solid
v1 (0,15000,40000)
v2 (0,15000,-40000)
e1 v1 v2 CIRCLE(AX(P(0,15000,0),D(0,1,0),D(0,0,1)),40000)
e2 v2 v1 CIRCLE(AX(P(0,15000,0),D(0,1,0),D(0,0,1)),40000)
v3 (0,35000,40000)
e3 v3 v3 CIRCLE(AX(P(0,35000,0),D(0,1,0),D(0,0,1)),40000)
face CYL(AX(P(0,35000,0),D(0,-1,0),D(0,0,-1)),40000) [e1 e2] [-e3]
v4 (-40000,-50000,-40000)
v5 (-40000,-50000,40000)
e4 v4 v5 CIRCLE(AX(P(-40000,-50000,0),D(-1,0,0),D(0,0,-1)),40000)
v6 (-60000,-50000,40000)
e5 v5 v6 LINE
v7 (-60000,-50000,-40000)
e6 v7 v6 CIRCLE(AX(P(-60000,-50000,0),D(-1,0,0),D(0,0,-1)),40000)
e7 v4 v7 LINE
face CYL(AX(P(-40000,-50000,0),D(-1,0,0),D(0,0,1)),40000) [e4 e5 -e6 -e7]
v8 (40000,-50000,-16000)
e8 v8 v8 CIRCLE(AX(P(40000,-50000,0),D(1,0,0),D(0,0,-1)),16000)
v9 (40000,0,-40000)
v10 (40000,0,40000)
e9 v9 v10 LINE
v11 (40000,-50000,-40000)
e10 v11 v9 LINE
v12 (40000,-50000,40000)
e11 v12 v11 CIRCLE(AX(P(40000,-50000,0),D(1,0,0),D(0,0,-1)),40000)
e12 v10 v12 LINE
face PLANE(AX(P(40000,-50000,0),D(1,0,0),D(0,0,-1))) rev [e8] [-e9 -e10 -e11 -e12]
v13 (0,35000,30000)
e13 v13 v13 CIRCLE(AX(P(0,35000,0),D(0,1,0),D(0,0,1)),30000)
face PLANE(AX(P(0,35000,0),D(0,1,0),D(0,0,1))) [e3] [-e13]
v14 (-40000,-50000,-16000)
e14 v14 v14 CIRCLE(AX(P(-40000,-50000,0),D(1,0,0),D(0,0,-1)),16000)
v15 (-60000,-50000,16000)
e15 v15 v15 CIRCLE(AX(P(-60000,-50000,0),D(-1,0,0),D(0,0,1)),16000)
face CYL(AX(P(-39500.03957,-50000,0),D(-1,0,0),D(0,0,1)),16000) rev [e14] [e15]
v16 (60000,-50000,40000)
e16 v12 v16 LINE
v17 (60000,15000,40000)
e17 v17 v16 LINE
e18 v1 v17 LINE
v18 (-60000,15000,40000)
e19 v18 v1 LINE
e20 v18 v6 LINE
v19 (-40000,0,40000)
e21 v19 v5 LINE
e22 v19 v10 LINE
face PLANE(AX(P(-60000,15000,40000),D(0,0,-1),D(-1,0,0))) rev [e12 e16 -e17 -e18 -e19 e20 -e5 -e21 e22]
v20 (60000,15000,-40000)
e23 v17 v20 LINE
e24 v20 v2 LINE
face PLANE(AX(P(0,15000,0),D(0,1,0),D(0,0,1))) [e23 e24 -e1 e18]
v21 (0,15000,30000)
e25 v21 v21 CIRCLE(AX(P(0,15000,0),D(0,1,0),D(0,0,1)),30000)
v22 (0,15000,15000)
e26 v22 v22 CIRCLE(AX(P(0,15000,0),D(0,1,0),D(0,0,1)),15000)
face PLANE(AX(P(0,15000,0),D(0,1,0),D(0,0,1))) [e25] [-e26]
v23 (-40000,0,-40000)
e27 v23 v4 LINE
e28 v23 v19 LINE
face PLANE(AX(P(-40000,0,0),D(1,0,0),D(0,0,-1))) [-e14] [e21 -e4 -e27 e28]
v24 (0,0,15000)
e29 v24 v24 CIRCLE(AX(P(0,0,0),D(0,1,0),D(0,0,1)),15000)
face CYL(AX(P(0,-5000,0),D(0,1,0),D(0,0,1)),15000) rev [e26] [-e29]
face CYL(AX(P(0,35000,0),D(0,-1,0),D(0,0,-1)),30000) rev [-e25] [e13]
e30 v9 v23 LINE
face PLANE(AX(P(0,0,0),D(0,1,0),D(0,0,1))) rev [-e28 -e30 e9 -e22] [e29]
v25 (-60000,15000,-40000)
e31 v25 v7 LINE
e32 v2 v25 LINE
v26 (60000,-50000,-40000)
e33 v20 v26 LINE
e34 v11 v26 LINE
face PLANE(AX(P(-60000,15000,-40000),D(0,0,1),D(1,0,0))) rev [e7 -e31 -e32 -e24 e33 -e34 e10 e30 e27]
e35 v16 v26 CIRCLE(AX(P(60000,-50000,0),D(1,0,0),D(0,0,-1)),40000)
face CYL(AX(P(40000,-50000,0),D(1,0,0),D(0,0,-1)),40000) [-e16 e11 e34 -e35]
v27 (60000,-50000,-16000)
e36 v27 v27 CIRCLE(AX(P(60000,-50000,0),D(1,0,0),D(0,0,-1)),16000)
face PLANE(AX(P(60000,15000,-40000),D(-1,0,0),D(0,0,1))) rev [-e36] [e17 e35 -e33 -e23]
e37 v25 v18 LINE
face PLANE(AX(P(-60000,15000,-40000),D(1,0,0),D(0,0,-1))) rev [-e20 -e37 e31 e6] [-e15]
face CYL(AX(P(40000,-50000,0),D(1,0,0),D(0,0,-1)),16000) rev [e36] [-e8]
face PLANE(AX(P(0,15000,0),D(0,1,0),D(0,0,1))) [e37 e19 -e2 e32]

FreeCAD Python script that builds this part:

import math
import FreeCAD as App
import Part
import Sketcher

V = App.Vector
Q = App.Units.Quantity


def add_polygon(sketch, points):
    """Adds a closed chain of lines whose ends are joined by coincident constraints."""
    first, n = sketch.GeometryCount, len(points)
    for a, b in zip(points, points[1:] + points[:1]):
        sketch.addGeometry(Part.LineSegment(App.Vector(*a, 0), App.Vector(*b, 0)), False)
    for i in range(n):
        sketch.addConstraint(Sketcher.Constraint("Coincident", first + i, 2, first + (i + 1) % n, 1))

doc = App.newDocument("Part")
body = doc.addObject("PartDesign::Body", "Body")

# Sketch on XZ plane
sketch1 = body.newObject("Sketcher::SketchObject", "Sketch")
sketch1.AttachmentSupport = (doc.getObject("XZ_Plane"), [""])
sketch1.MapMode = "FlatFace"
add_polygon(sketch1, [(-60000, -40000), (-60000, 40000), (60000, 40000), (60000, -40000)])  # lines 0-3
sketch1.addConstraint([
    Sketcher.Constraint("Vertical", 0),
    Sketcher.Constraint("Horizontal", 1),
    Sketcher.Constraint("Vertical", 2),
    Sketcher.Constraint("Horizontal", 3),
    Sketcher.Constraint("Symmetric", 0, 2, 2, 2, -1, 1),
    Sketcher.Constraint("DistanceX", 1, 1, 1, 2, Q("120000 mm")),
    Sketcher.Constraint("DistanceY", 0, 1, 0, 2, Q("80000 mm")),
])
pad1 = body.newObject("PartDesign::Pad", "Pad")
pad1.Profile = sketch1
pad1.Length = 15000
pad1.Reversed = True

# Sketch on XZ plane
sketch2 = body.newObject("Sketcher::SketchObject", "Sketch001")
sketch2.AttachmentSupport = (doc.getObject("XZ_Plane"), [""])
sketch2.MapMode = "FlatFace"
sketch2.AttachmentOffset = App.Placement(V(0, 0, -15000), App.Rotation())
sketch2.addGeometry([
    Part.Circle(V(0, 0, 0), V(0, 0, 1), 40000),
    Part.Circle(V(0, 0, 0), V(0, 0, 1), 30000),
], False)
sketch2.addConstraint([
    Sketcher.Constraint("Coincident", 0, 3, -1, 1),
    Sketcher.Constraint("Coincident", 1, 3, -1, 1),
    Sketcher.Constraint("Diameter", 0, Q("80000 mm")),
    Sketcher.Constraint("Diameter", 1, Q("60000 mm")),
])
pad2 = body.newObject("PartDesign::Pad", "Pad001")
pad2.Profile = sketch2
pad2.Length = 20000
pad2.Reversed = True

# Sketch on XZ plane
sketch3 = body.newObject("Sketcher::SketchObject", "Sketch002")
sketch3.AttachmentSupport = (doc.getObject("XZ_Plane"), [""])
sketch3.MapMode = "FlatFace"
sketch3.AttachmentOffset = App.Placement(V(0, 0, -15000), App.Rotation())
sketch3.addGeometry(Part.Circle(V(0, 0, 0), V(0, 0, 1), 15000), False)
sketch3.addConstraint([
    Sketcher.Constraint("Coincident", 0, 3, -1, 1),
    Sketcher.Constraint("Diameter", 0, Q("30000 mm")),
])
pocket1 = body.newObject("PartDesign::Pocket", "Pocket")
pocket1.Profile = sketch3
pocket1.Length = 20000
pocket1.Reversed = True

# Sketch on YZ plane
sketch4 = body.newObject("Sketcher::SketchObject", "Sketch003")
sketch4.AttachmentSupport = (doc.getObject("YZ_Plane"), [""])
sketch4.MapMode = "FlatFace"
sketch4.AttachmentOffset = App.Placement(V(0, 0, -60000), App.Rotation())
add_polygon(sketch4, [(0, -40000), (-50000, -40000), (-50000, 40000), (0, 40000)])  # lines 0-3
sketch4.addConstraint([
    Sketcher.Constraint("Horizontal", 0),
    Sketcher.Constraint("Vertical", 1),
    Sketcher.Constraint("Horizontal", 2),
    Sketcher.Constraint("Vertical", 3),
    Sketcher.Constraint("Symmetric", 2, 2, 3, 2, -1, 1),
    Sketcher.Constraint("DistanceX", 0, 2, 0, 1, Q("50000 mm")),
    Sketcher.Constraint("DistanceY", 1, 1, 1, 2, Q("80000 mm")),
])
pad3 = body.newObject("PartDesign::Pad", "Pad002")
pad3.Profile = sketch4
pad3.Length = 20000

# Sketch on YZ plane
sketch5 = body.newObject("Sketcher::SketchObject", "Sketch004")
sketch5.AttachmentSupport = (doc.getObject("YZ_Plane"), [""])
sketch5.MapMode = "FlatFace"
sketch5.AttachmentOffset = App.Placement(V(0, 0, -60000), App.Rotation())
sketch5.addGeometry([
    Part.LineSegment(V(-50000, 40000, 0), V(-50000, -40000, 0)),
    Part.ArcOfCircle(Part.Circle(V(-50000, 0, 0), V(0, 0, 1), 40000), math.radians(90), math.radians(270)),
], False)
sketch5.addConstraint([
    Sketcher.Constraint("Coincident", 0, 1, 1, 1),
    Sketcher.Constraint("Coincident", 1, 2, 0, 2),
    Sketcher.Constraint("Vertical", 0),
    Sketcher.Constraint("PointOnObject", 1, 3, -1),
    Sketcher.Constraint("Vertical", 1, 3, 0, 1),
    Sketcher.Constraint("Radius", 1, Q("40000 mm")),
    Sketcher.Constraint("DistanceX", 1, 3, -1, 1, Q("50000 mm")),
])
pad4 = body.newObject("PartDesign::Pad", "Pad003")
pad4.Profile = sketch5
pad4.Length = 20000

# Sketch on YZ plane
sketch6 = body.newObject("Sketcher::SketchObject", "Sketch005")
sketch6.AttachmentSupport = (doc.getObject("YZ_Plane"), [""])
sketch6.MapMode = "FlatFace"
sketch6.AttachmentOffset = App.Placement(V(0, 0, -60000), App.Rotation())
sketch6.addGeometry(Part.Circle(V(-50000, 0, 0), V(0, 0, 1), 16000), False)
sketch6.addConstraint([
    Sketcher.Constraint("PointOnObject", 0, 3, -1),
    Sketcher.Constraint("Diameter", 0, Q("32000 mm")),
    Sketcher.Constraint("DistanceX", 0, 3, -1, 1, Q("50000 mm")),
])
pocket2 = body.newObject("PartDesign::Pocket", "Pocket001")
pocket2.Profile = sketch6
pocket2.Length = 20499.96043
pocket2.Reversed = True

# Sketch on YZ plane
sketch7 = body.newObject("Sketcher::SketchObject", "Sketch006")
sketch7.AttachmentSupport = (doc.getObject("YZ_Plane"), [""])
sketch7.MapMode = "FlatFace"
sketch7.AttachmentOffset = App.Placement(V(0, 0, 40000), App.Rotation())
sketch7.addGeometry([
    Part.LineSegment(V(0, -40000, 0), V(0, 40000, 0)),
    Part.LineSegment(V(0, 40000, 0), V(-50000, 40000, 0)),
    Part.ArcOfCircle(Part.Circle(V(-50000, 0, 0), V(0, 0, 1), 40000), math.radians(90), math.radians(270)),
    Part.LineSegment(V(-50000, -40000, 0), V(0, -40000, 0)),
], False)
sketch7.addConstraint([
    Sketcher.Constraint("Coincident", 0, 2, 1, 1),
    Sketcher.Constraint("Coincident", 1, 2, 2, 1),
    Sketcher.Constraint("Coincident", 2, 2, 3, 1),
    Sketcher.Constraint("Coincident", 3, 2, 0, 1),
    Sketcher.Constraint("Vertical", 0),
    Sketcher.Constraint("Horizontal", 1),
    Sketcher.Constraint("Horizontal", 3),
    Sketcher.Constraint("Symmetric", 0, 2, 3, 2, -1, 1),
    Sketcher.Constraint("Vertical", 2, 3, 1, 2),
    Sketcher.Constraint("Equal", 1, 3),
    Sketcher.Constraint("Radius", 2, Q("40000 mm")),
    Sketcher.Constraint("DistanceX", 1, 2, 1, 1, Q("50000 mm")),
])
pad5 = body.newObject("PartDesign::Pad", "Pad004")
pad5.Profile = sketch7
pad5.Length = 20000

# Sketch on YZ plane
sketch8 = body.newObject("Sketcher::SketchObject", "Sketch007")
sketch8.AttachmentSupport = (doc.getObject("YZ_Plane"), [""])
sketch8.MapMode = "FlatFace"
sketch8.AttachmentOffset = App.Placement(V(0, 0, 40000), App.Rotation())
sketch8.addGeometry(Part.Circle(V(-50000, 0, 0), V(0, 0, 1), 16000), False)
sketch8.addConstraint([
    Sketcher.Constraint("PointOnObject", 0, 3, -1),
    Sketcher.Constraint("Diameter", 0, Q("32000 mm")),
    Sketcher.Constraint("DistanceX", 0, 3, -1, 1, Q("50000 mm")),
])
pocket3 = body.newObject("PartDesign::Pocket", "Pocket002")
pocket3.Profile = sketch8
pocket3.Length = 20000
pocket3.Reversed = True

doc.recompute()
